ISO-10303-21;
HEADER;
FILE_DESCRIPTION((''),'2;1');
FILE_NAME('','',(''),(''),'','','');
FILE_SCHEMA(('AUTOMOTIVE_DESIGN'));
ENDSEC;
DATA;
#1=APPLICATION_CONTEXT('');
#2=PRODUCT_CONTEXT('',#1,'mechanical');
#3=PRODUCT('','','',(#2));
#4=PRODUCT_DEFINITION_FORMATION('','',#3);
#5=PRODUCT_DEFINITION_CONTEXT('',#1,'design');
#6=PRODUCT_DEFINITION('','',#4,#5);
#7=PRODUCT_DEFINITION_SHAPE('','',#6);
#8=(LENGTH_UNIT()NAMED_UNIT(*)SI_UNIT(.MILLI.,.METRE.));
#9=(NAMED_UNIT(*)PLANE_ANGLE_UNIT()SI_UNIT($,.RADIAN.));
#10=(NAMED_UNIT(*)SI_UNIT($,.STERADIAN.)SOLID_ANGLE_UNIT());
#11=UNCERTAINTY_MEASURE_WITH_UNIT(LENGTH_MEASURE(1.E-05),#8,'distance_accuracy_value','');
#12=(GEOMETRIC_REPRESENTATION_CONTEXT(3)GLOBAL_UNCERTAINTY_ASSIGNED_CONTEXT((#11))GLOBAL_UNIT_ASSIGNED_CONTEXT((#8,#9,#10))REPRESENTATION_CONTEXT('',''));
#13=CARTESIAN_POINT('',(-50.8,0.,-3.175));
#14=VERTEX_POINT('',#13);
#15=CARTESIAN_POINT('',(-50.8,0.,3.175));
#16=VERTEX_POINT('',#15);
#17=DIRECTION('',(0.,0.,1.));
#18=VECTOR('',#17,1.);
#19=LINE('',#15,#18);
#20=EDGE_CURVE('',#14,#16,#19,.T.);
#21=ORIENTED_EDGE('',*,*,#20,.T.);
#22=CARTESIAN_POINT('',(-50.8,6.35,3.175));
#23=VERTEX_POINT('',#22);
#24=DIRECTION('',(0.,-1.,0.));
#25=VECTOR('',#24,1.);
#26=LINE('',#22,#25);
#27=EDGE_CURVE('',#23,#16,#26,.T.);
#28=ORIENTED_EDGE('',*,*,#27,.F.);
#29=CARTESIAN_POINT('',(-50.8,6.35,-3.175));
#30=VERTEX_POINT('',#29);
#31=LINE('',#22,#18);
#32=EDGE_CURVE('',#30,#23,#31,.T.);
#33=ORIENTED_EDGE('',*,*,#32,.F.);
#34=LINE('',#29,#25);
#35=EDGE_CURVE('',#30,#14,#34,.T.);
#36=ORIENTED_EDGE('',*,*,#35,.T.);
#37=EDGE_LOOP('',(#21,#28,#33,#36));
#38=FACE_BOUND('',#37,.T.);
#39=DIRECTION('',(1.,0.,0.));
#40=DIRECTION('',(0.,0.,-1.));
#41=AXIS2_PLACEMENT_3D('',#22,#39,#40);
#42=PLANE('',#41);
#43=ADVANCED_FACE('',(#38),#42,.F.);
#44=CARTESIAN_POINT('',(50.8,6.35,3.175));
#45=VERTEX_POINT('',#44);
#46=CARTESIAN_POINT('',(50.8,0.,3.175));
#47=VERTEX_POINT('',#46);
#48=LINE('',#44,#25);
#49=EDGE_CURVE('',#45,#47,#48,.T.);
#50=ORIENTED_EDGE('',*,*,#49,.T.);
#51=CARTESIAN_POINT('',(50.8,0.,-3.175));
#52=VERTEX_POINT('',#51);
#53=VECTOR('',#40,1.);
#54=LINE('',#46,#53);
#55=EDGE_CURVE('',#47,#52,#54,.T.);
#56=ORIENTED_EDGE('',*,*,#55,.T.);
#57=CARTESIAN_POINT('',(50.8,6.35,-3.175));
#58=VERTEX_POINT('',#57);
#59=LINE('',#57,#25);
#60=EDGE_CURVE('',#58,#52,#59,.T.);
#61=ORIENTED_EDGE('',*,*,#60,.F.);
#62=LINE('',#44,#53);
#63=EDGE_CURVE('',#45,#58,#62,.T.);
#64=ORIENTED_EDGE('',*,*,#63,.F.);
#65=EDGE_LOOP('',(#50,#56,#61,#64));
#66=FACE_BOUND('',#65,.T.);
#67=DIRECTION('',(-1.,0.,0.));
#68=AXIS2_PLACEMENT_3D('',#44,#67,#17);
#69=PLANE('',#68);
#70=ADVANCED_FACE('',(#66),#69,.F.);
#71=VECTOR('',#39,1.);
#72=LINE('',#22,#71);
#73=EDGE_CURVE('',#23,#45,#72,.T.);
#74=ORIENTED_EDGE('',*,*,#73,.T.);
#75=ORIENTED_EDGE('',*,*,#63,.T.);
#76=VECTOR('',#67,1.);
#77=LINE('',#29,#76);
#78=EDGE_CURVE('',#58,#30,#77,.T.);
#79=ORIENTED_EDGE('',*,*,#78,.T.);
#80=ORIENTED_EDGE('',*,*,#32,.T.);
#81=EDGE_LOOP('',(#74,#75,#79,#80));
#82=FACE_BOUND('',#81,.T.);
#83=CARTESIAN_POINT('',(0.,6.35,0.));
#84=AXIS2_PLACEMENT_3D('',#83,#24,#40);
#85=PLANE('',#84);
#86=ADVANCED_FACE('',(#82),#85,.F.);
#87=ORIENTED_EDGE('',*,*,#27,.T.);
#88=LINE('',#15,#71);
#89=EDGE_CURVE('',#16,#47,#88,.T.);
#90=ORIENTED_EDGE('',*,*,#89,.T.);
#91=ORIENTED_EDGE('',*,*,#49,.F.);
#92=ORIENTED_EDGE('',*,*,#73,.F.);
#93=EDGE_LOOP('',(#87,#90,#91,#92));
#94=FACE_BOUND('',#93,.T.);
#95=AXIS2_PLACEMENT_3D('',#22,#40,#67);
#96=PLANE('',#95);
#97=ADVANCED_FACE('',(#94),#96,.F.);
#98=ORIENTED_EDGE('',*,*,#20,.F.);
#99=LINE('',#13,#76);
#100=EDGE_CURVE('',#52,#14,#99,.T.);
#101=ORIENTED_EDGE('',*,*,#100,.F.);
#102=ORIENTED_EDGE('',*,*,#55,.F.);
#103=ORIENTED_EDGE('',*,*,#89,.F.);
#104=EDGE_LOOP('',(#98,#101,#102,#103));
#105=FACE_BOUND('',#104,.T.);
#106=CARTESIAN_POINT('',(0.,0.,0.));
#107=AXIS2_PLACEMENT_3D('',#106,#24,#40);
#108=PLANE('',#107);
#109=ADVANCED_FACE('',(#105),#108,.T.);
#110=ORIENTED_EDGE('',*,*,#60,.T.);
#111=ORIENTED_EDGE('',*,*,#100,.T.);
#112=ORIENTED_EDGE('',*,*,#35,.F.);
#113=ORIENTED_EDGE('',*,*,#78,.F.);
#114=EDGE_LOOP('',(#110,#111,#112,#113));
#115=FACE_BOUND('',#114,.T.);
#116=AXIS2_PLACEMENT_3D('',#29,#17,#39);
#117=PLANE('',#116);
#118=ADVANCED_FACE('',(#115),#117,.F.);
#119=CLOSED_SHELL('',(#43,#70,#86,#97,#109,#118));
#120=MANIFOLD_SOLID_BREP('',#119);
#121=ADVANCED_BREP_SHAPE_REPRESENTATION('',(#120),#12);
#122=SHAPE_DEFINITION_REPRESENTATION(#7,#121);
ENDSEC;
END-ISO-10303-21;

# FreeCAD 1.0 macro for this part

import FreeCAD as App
import Part
import Sketcher
from FreeCAD import Vector
Q = App.Units.Quantity

doc = App.newDocument("Part")
body = doc.addObject("PartDesign::Body", "Body")

sketch1 = body.newObject("Sketcher::SketchObject", "Sketch")
sketch1.AttachmentSupport = (doc.getObject("XZ_Plane"), [""])
sketch1.MapMode = "FlatFace"
sketch1.addGeometry(Part.LineSegment(Vector(-51, -3, 0), Vector(-51, 3, 0)), False)
sketch1.addGeometry(Part.LineSegment(Vector(-51, 3, 0), Vector(51, 3, 0)), False)
sketch1.addGeometry(Part.LineSegment(Vector(51, 3, 0), Vector(51, -3, 0)), False)
sketch1.addGeometry(Part.LineSegment(Vector(51, -3, 0), Vector(-51, -3, 0)), False)
sketch1.addConstraint(Sketcher.Constraint("Coincident", 0, 2, 1, 1))
sketch1.addConstraint(Sketcher.Constraint("Coincident", 1, 2, 2, 1))
sketch1.addConstraint(Sketcher.Constraint("Coincident", 2, 2, 3, 1))
sketch1.addConstraint(Sketcher.Constraint("Coincident", 3, 2, 0, 1))
sketch1.addConstraint(Sketcher.Constraint("Vertical", 0))
sketch1.addConstraint(Sketcher.Constraint("Horizontal", 1))
sketch1.addConstraint(Sketcher.Constraint("Vertical", 2))
sketch1.addConstraint(Sketcher.Constraint("Horizontal", 3))
sketch1.addConstraint(Sketcher.Constraint("Symmetric", 0, 2, 2, 2, -1, 1))
sketch1.addConstraint(Sketcher.Constraint("DistanceX", 1, 1, 1, 2, Q("4 in")))
sketch1.addConstraint(Sketcher.Constraint("DistanceY", 0, 1, 0, 2, Q("0.25 in")))
pad1 = body.newObject("PartDesign::Pad", "Pad")
pad1.Profile = sketch1
pad1.Length = Q("0.25 in")
pad1.Reversed = True

doc.recompute()
